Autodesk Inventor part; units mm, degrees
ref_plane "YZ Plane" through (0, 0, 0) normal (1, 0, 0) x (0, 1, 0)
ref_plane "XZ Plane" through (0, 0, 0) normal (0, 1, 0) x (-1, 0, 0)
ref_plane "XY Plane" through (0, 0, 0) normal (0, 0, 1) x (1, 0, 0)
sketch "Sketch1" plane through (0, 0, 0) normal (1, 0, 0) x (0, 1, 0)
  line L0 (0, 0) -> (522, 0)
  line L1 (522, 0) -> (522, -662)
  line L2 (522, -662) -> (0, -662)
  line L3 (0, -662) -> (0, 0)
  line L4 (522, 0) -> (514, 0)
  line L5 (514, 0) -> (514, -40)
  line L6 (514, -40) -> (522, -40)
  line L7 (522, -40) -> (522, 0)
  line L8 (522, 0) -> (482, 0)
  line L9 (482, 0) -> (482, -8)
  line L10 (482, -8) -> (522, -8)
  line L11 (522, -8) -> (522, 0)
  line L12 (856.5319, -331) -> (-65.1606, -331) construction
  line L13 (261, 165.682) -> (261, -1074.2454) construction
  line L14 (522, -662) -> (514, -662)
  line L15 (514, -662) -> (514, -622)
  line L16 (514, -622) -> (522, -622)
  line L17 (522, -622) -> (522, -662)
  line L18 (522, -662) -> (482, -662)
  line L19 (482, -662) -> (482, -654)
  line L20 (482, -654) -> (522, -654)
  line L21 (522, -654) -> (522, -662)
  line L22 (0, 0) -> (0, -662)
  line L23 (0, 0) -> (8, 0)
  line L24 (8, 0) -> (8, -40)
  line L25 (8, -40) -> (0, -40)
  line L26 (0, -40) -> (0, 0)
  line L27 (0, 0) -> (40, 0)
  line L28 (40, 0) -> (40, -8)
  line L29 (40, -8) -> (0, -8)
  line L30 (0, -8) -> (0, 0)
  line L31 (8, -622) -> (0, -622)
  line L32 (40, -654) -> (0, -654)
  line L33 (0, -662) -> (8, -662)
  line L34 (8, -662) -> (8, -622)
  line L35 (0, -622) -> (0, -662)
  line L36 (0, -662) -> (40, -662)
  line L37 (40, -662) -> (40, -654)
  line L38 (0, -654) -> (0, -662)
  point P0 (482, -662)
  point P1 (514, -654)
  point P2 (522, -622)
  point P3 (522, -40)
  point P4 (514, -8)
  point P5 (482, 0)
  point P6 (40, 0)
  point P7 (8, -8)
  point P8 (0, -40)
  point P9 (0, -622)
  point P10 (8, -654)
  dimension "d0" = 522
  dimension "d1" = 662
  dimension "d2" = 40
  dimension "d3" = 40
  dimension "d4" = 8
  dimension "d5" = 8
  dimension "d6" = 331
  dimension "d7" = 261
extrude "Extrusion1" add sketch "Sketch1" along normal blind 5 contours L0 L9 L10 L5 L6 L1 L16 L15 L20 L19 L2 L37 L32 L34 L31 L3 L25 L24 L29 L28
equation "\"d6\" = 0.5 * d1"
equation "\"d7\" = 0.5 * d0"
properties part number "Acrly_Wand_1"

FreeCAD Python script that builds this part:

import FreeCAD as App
import Part
import Sketcher
from FreeCAD import Vector
Q = App.Units.Quantity

doc = App.newDocument("Part")
params = doc.addObject("Spreadsheet::Sheet", "Params")
for row, (alias, value) in enumerate([
    ("sketch1_width", "8 mm"),
    ("pad1_length", "5 mm"),
], start=1):
    params.set(f"A{row}", alias)
    params.set(f"B{row}", "=" + value)
    params.setAlias(f"B{row}", alias)

body = doc.addObject("PartDesign::Body", "Body")

# Sketch on YZ plane
sketch1 = doc.addObject("Sketcher::SketchObject", "Sketch")
body.addObject(sketch1)
sketch1.AttachmentSupport = (doc.YZ_Plane, [""])
sketch1.MapMode = "FlatFace"
sketch1.addGeometry([
    Part.LineSegment(Vector(482, 0, 0), Vector(40, 0, 0)),  # 0
    Part.LineSegment(Vector(40, 0, 0), Vector(40, -8, 0)),  # 1
    Part.LineSegment(Vector(40, -8, 0), Vector(8, -8, 0)),  # 2
    Part.LineSegment(Vector(8, -8, 0), Vector(8, -40, 0)),  # 3
    Part.LineSegment(Vector(8, -40, 0), Vector(0, -40, 0)),  # 4
    Part.LineSegment(Vector(0, -40, 0), Vector(0, -622, 0)),  # 5
    Part.LineSegment(Vector(0, -622, 0), Vector(8, -622, 0)),  # 6
    Part.LineSegment(Vector(8, -622, 0), Vector(8, -654, 0)),  # 7
    Part.LineSegment(Vector(8, -654, 0), Vector(40, -654, 0)),  # 8
    Part.LineSegment(Vector(40, -654, 0), Vector(40, -662, 0)),  # 9
    Part.LineSegment(Vector(40, -662, 0), Vector(482, -662, 0)),  # 10
    Part.LineSegment(Vector(482, -662, 0), Vector(482, -654, 0)),  # 11
    Part.LineSegment(Vector(482, -654, 0), Vector(514, -654, 0)),  # 12
    Part.LineSegment(Vector(514, -654, 0), Vector(514, -622, 0)),  # 13
    Part.LineSegment(Vector(514, -622, 0), Vector(522, -622, 0)),  # 14
    Part.LineSegment(Vector(522, -622, 0), Vector(522, -40, 0)),  # 15
    Part.LineSegment(Vector(522, -40, 0), Vector(514, -40, 0)),  # 16
    Part.LineSegment(Vector(514, -40, 0), Vector(514, -8, 0)),  # 17
    Part.LineSegment(Vector(514, -8, 0), Vector(482, -8, 0)),  # 18
    Part.LineSegment(Vector(482, -8, 0), Vector(482, 0, 0)),  # 19
], False)
sketch1.addConstraint([
    Sketcher.Constraint("Coincident", 0, 2, 1, 1),
    Sketcher.Constraint("Coincident", 1, 2, 2, 1),
    Sketcher.Constraint("Coincident", 2, 2, 3, 1),
    Sketcher.Constraint("Coincident", 3, 2, 4, 1),
    Sketcher.Constraint("Coincident", 4, 2, 5, 1),
    Sketcher.Constraint("Coincident", 5, 2, 6, 1),
    Sketcher.Constraint("Coincident", 6, 2, 7, 1),
    Sketcher.Constraint("Coincident", 7, 2, 8, 1),
    Sketcher.Constraint("Coincident", 8, 2, 9, 1),
    Sketcher.Constraint("Coincident", 9, 2, 10, 1),
    Sketcher.Constraint("Coincident", 10, 2, 11, 1),
    Sketcher.Constraint("Coincident", 11, 2, 12, 1),
    Sketcher.Constraint("Coincident", 12, 2, 13, 1),
    Sketcher.Constraint("Coincident", 13, 2, 14, 1),
    Sketcher.Constraint("Coincident", 14, 2, 15, 1),
    Sketcher.Constraint("Coincident", 15, 2, 16, 1),
    Sketcher.Constraint("Coincident", 16, 2, 17, 1),
    Sketcher.Constraint("Coincident", 17, 2, 18, 1),
    Sketcher.Constraint("Coincident", 18, 2, 19, 1),
    Sketcher.Constraint("Coincident", 19, 2, 0, 1),
    Sketcher.Constraint("Horizontal", 0),
    Sketcher.Constraint("Vertical", 1),
    Sketcher.Constraint("Horizontal", 2),
    Sketcher.Constraint("Vertical", 3),
    Sketcher.Constraint("Horizontal", 4),
    Sketcher.Constraint("Vertical", 5),
    Sketcher.Constraint("Horizontal", 6),
    Sketcher.Constraint("Vertical", 7),
    Sketcher.Constraint("Horizontal", 8),
    Sketcher.Constraint("Vertical", 9),
    Sketcher.Constraint("Horizontal", 10),
    Sketcher.Constraint("Vertical", 11),
    Sketcher.Constraint("Horizontal", 12),
    Sketcher.Constraint("Vertical", 13),
    Sketcher.Constraint("Horizontal", 14),
    Sketcher.Constraint("Vertical", 15),
    Sketcher.Constraint("Horizontal", 16),
    Sketcher.Constraint("Vertical", 17),
    Sketcher.Constraint("Horizontal", 18),
    Sketcher.Constraint("Vertical", 19),
    Sketcher.Constraint("PointOnObject", 0, 2, -1),
    Sketcher.Constraint("PointOnObject", 4, 2, -2),
    Sketcher.Constraint("Horizontal", 8, 2, 11, 2),
    Sketcher.Constraint("Horizontal", 6, 2, 13, 2),
    Sketcher.Constraint("Horizontal", 4, 2, 15, 2),
    Sketcher.Constraint("Horizontal", 2, 2, 17, 2),
    Sketcher.Constraint("Vertical", 3, 2, 6, 2),
    Sketcher.Constraint("Vertical", 1, 2, 8, 2),
    Sketcher.Constraint("Vertical", 13, 2, 16, 2),
    Sketcher.Constraint("Vertical", 11, 2, 18, 2),
    Sketcher.Constraint("Equal", 8, 12),
    Sketcher.Constraint("Equal", 6, 14),
    Sketcher.Constraint("Equal", 16, 1),
    Sketcher.Constraint("Equal", 18, 3),
    Sketcher.Constraint("Equal", 3, 7),
    Sketcher.Constraint("Equal", 1, 9),
    Sketcher.Constraint("DistanceX", 4, 2, 4, 1, Q("8 mm")),
    Sketcher.Constraint("DistanceX", -1, 1, 0, 2, Q("40 mm")),
    Sketcher.Constraint("DistanceY", 9, 2, -1, 1, Q("662 mm")),
    Sketcher.Constraint("DistanceX", -1, 1, 14, 2, Q("522 mm")),
])
sketch1.setExpression("Constraints[56]", "Params.sketch1_width")
pad1 = doc.addObject("PartDesign::Pad", "Pad")
body.addObject(pad1)
pad1.Profile = sketch1
pad1.setExpression("Length", "Params.pad1_length")

doc.recompute()
